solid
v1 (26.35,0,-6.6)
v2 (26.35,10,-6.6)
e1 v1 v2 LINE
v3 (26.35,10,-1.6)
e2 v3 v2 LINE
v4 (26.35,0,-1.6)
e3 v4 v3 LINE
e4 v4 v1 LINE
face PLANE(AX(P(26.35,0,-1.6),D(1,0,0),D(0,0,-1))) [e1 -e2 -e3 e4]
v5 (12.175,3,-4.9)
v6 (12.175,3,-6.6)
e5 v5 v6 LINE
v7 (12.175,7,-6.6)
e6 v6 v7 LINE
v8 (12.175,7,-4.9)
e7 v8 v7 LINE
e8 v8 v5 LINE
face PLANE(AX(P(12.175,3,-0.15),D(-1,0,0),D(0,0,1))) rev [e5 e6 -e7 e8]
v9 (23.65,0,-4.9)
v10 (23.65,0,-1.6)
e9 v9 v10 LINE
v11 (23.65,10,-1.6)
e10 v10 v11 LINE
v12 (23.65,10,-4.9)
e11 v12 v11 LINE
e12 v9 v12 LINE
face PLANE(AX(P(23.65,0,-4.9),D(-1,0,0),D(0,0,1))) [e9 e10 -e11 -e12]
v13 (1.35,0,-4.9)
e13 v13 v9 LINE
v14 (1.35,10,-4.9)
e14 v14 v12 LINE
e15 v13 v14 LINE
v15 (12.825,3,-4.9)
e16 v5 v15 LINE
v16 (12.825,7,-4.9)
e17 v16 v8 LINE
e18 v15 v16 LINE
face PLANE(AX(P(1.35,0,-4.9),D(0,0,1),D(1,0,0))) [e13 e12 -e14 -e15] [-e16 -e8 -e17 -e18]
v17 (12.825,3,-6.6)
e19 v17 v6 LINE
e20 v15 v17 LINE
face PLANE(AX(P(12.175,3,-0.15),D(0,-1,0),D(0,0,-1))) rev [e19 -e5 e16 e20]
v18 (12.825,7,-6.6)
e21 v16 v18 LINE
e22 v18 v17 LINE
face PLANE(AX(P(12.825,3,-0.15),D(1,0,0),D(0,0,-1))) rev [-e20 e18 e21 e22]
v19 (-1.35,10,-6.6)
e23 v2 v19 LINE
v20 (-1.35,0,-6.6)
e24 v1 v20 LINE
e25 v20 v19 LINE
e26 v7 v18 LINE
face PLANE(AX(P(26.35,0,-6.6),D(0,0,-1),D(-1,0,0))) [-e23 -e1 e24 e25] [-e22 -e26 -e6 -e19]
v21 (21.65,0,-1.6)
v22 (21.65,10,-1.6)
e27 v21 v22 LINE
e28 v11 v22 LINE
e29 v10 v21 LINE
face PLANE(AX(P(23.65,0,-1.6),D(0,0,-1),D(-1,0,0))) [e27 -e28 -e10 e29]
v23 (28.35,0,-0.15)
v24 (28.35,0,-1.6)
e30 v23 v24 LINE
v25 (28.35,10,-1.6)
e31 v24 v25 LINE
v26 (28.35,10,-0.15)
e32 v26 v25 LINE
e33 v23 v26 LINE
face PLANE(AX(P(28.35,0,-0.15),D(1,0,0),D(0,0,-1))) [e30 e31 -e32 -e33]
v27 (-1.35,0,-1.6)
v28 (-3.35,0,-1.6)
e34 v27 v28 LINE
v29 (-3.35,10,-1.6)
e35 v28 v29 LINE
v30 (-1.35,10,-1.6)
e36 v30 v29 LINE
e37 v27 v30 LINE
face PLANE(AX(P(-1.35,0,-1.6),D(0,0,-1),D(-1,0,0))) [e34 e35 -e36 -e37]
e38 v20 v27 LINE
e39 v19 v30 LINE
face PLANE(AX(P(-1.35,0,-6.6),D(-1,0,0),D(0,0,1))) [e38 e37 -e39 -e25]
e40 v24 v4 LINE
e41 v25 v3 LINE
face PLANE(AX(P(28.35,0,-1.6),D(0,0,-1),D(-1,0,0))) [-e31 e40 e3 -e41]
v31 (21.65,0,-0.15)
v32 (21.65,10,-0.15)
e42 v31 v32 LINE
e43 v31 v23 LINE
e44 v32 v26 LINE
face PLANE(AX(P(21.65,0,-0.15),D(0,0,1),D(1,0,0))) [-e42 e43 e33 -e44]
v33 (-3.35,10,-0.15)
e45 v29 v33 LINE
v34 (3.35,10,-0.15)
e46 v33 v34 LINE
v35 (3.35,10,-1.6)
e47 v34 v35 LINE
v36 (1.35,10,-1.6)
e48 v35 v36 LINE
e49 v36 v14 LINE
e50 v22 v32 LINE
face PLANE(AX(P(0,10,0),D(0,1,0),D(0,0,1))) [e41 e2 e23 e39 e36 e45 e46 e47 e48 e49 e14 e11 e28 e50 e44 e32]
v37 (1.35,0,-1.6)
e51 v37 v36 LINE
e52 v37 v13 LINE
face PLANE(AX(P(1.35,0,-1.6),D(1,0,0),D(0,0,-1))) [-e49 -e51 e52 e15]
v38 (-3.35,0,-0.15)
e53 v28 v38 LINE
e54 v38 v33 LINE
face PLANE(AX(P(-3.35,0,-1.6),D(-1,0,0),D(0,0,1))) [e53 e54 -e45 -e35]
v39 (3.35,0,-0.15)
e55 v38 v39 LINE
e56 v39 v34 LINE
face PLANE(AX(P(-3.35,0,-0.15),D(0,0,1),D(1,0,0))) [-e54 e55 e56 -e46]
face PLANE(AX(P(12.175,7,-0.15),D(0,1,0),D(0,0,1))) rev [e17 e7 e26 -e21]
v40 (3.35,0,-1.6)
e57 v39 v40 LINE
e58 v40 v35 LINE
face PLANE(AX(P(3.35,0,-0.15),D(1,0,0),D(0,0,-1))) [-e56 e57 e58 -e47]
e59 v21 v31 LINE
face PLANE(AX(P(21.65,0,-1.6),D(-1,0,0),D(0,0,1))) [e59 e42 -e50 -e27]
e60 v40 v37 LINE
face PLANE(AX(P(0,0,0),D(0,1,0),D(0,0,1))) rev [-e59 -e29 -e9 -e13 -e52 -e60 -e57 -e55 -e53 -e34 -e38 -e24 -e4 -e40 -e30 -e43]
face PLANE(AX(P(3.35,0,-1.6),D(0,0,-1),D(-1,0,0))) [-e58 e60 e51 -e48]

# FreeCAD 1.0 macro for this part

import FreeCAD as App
import Part
import Sketcher
from FreeCAD import Vector
Q = App.Units.Quantity

doc = App.newDocument("Part")
body = doc.addObject("PartDesign::Body", "Body")

# Sketch on XZ plane
sketch1 = body.newObject("Sketcher::SketchObject", "Sketch")
sketch1.AttachmentSupport = (doc.getObject("XZ_Plane"), [""])
sketch1.MapMode = "FlatFace"
sketch1.addGeometry([
    Part.LineSegment(Vector(3.5, -1.8, 0), Vector(1.5, -1.8, 0)),  # 0
    Part.LineSegment(Vector(1.5, -1.8, 0), Vector(1.5, -4.8, 0)),  # 1
    Part.LineSegment(Vector(1.5, -4.8, 0), Vector(23.5, -4.8, 0)),  # 2
    Part.LineSegment(Vector(23.5, -4.8, 0), Vector(23.5, -1.8, 0)),  # 3
    Part.LineSegment(Vector(23.5, -1.8, 0), Vector(21.5, -1.8, 0)),  # 4
    Part.LineSegment(Vector(21.5, -1.8, 0), Vector(21.5, 0, 0)),  # 5
    Part.LineSegment(Vector(21.5, 0, 0), Vector(28.5, 0, 0)),  # 6
    Part.LineSegment(Vector(28.5, 0, 0), Vector(28.5, -1.8, 0)),  # 7
    Part.LineSegment(Vector(28.5, -1.8, 0), Vector(26.5, -1.8, 0)),  # 8
    Part.LineSegment(Vector(26.5, -1.8, 0), Vector(26.5, -6.8, 0)),  # 9
    Part.LineSegment(Vector(26.5, -6.8, 0), Vector(-1.5, -6.8, 0)),  # 10
    Part.LineSegment(Vector(-1.5, -6.8, 0), Vector(-1.5, -1.8, 0)),  # 11
    Part.LineSegment(Vector(-1.5, -1.8, 0), Vector(-3.5, -1.8, 0)),  # 12
    Part.LineSegment(Vector(-3.5, -1.8, 0), Vector(-3.5, 0, 0)),  # 13
    Part.LineSegment(Vector(-3.5, 0, 0), Vector(3.5, 0, 0)),  # 14
    Part.LineSegment(Vector(3.5, 0, 0), Vector(3.5, -1.8, 0)),  # 15
], False)
sketch1.addConstraint([
    Sketcher.Constraint("Coincident", 0, 2, 1, 1),
    Sketcher.Constraint("Coincident", 1, 2, 2, 1),
    Sketcher.Constraint("Coincident", 2, 2, 3, 1),
    Sketcher.Constraint("Coincident", 3, 2, 4, 1),
    Sketcher.Constraint("Coincident", 4, 2, 5, 1),
    Sketcher.Constraint("Coincident", 5, 2, 6, 1),
    Sketcher.Constraint("Coincident", 6, 2, 7, 1),
    Sketcher.Constraint("Coincident", 7, 2, 8, 1),
    Sketcher.Constraint("Coincident", 8, 2, 9, 1),
    Sketcher.Constraint("Coincident", 9, 2, 10, 1),
    Sketcher.Constraint("Coincident", 10, 2, 11, 1),
    Sketcher.Constraint("Coincident", 11, 2, 12, 1),
    Sketcher.Constraint("Coincident", 12, 2, 13, 1),
    Sketcher.Constraint("Coincident", 13, 2, 14, 1),
    Sketcher.Constraint("Coincident", 14, 2, 15, 1),
    Sketcher.Constraint("Coincident", 15, 2, 0, 1),
    Sketcher.Constraint("Horizontal", 0),
    Sketcher.Constraint("Vertical", 1),
    Sketcher.Constraint("Horizontal", 2),
    Sketcher.Constraint("Vertical", 3),
    Sketcher.Constraint("Horizontal", 4),
    Sketcher.Constraint("Vertical", 5),
    Sketcher.Constraint("Horizontal", 6),
    Sketcher.Constraint("Vertical", 7),
    Sketcher.Constraint("Horizontal", 8),
    Sketcher.Constraint("Vertical", 9),
    Sketcher.Constraint("Horizontal", 10),
    Sketcher.Constraint("Vertical", 11),
    Sketcher.Constraint("Horizontal", 12),
    Sketcher.Constraint("Vertical", 13),
    Sketcher.Constraint("Horizontal", 14),
    Sketcher.Constraint("Vertical", 15),
    Sketcher.Constraint("Symmetric", 13, 2, 14, 2, -1, 1),
    Sketcher.Constraint("Symmetric", 0, 2, 11, 2, -2),
    Sketcher.Constraint("PointOnObject", 5, 2, -1),
    Sketcher.Constraint("Horizontal", 0, 2, 3, 2),
    Sketcher.Constraint("Horizontal", 4, 2, 7, 2),
    Sketcher.Constraint("Equal", 0, 4),
    Sketcher.Constraint("Equal", 4, 8),
    Sketcher.Constraint("Equal", 6, 14),
    Sketcher.Constraint("DistanceX", 0, 2, 0, 1, Q("2 mm")),
    Sketcher.Constraint("DistanceX", 2, 1, 2, 2, Q("22 mm")),
    Sketcher.Constraint("DistanceX", 6, 1, 6, 2, Q("7 mm")),
    Sketcher.Constraint("DistanceY", 1, 2, 1, 1, Q("3 mm")),
    Sketcher.Constraint("DistanceY", 9, 2, 9, 1, Q("5 mm")),
    Sketcher.Constraint("DistanceY", 5, 1, 5, 2, Q("1.75 mm")),
])
pad1 = body.newObject("PartDesign::Pad", "Pad")
pad1.Profile = sketch1
pad1.Length = 10
pad1.Reversed = True

# Sketch on XZ plane
sketch2 = body.newObject("Sketcher::SketchObject", "Sketch001")
sketch2.AttachmentSupport = (doc.getObject("XZ_Plane"), [""])
sketch2.MapMode = "FlatFace"
sketch2.AttachmentOffset = App.Placement(Vector(0, 0, -10), App.Rotation())
sketch2.addGeometry([
    Part.LineSegment(Vector(-3.6, -1.9, 0), Vector(-3.6, 0.1, 0)),  # 0
    Part.LineSegment(Vector(-3.6, 0.1, 0), Vector(3.6, 0.1, 0)),  # 1
    Part.LineSegment(Vector(3.6, 0.1, 0), Vector(3.6, -1.9, 0)),  # 2
    Part.LineSegment(Vector(3.6, -1.9, 0), Vector(1.6, -1.9, 0)),  # 3
    Part.LineSegment(Vector(1.6, -1.9, 0), Vector(1.6, -4.6, 0)),  # 4
    Part.LineSegment(Vector(1.6, -4.6, 0), Vector(23.4, -4.6, 0)),  # 5
    Part.LineSegment(Vector(23.4, -4.6, 0), Vector(23.4, -1.9, 0)),  # 6
    Part.LineSegment(Vector(23.4, -1.9, 0), Vector(21.4, -1.9, 0)),  # 7
    Part.LineSegment(Vector(21.4, -1.9, 0), Vector(21.4, 0.1, 0)),  # 8
    Part.LineSegment(Vector(21.4, 0.1, 0), Vector(28.6, 0.1, 0)),  # 9
    Part.LineSegment(Vector(28.6, 0.1, 0), Vector(28.6, -1.9, 0)),  # 10
    Part.LineSegment(Vector(28.6, -1.9, 0), Vector(26.6, -1.9, 0)),  # 11
    Part.LineSegment(Vector(26.6, -1.9, 0), Vector(26.6, -6.9, 0)),  # 12
    Part.LineSegment(Vector(26.6, -6.9, 0), Vector(-1.6, -6.9, 0)),  # 13
    Part.LineSegment(Vector(-1.6, -6.9, 0), Vector(-1.6, -1.9, 0)),  # 14
    Part.LineSegment(Vector(-1.6, -1.9, 0), Vector(-3.6, -1.9, 0)),  # 15
    Part.LineSegment(Vector(-3.4, -0.1, 0), Vector(-3.4, -1.6, 0)),  # 16
    Part.LineSegment(Vector(-3.4, -1.6, 0), Vector(-1.4, -1.6, 0)),  # 17
    Part.LineSegment(Vector(-1.4, -1.6, 0), Vector(-1.4, -6.6, 0)),  # 18
    Part.LineSegment(Vector(-1.4, -6.6, 0), Vector(26.4, -6.6, 0)),  # 19
    Part.LineSegment(Vector(26.4, -6.6, 0), Vector(26.4, -1.6, 0)),  # 20
    Part.LineSegment(Vector(26.4, -1.6, 0), Vector(28.4, -1.6, 0)),  # 21
    Part.LineSegment(Vector(28.4, -1.6, 0), Vector(28.4, -0.1, 0)),  # 22
    Part.LineSegment(Vector(28.4, -0.1, 0), Vector(21.6, -0.1, 0)),  # 23
    Part.LineSegment(Vector(21.6, -0.1, 0), Vector(21.6, -1.6, 0)),  # 24
    Part.LineSegment(Vector(21.6, -1.6, 0), Vector(23.6, -1.6, 0)),  # 25
    Part.LineSegment(Vector(23.6, -1.6, 0), Vector(23.6, -4.9, 0)),  # 26
    Part.LineSegment(Vector(23.6, -4.9, 0), Vector(1.4, -4.9, 0)),  # 27
    Part.LineSegment(Vector(1.4, -4.9, 0), Vector(1.4, -1.6, 0)),  # 28
    Part.LineSegment(Vector(1.4, -1.6, 0), Vector(3.4, -1.6, 0)),  # 29
    Part.LineSegment(Vector(3.4, -1.6, 0), Vector(3.4, -0.1, 0)),  # 30
    Part.LineSegment(Vector(3.4, -0.1, 0), Vector(-3.4, -0.1, 0)),  # 31
], False)
sketch2.addConstraint([
    Sketcher.Constraint("Coincident", 0, 2, 1, 1),
    Sketcher.Constraint("Coincident", 1, 2, 2, 1),
    Sketcher.Constraint("Coincident", 2, 2, 3, 1),
    Sketcher.Constraint("Coincident", 3, 2, 4, 1),
    Sketcher.Constraint("Coincident", 4, 2, 5, 1),
    Sketcher.Constraint("Coincident", 5, 2, 6, 1),
    Sketcher.Constraint("Coincident", 6, 2, 7, 1),
    Sketcher.Constraint("Coincident", 7, 2, 8, 1),
    Sketcher.Constraint("Coincident", 8, 2, 9, 1),
    Sketcher.Constraint("Coincident", 9, 2, 10, 1),
    Sketcher.Constraint("Coincident", 10, 2, 11, 1),
    Sketcher.Constraint("Coincident", 11, 2, 12, 1),
    Sketcher.Constraint("Coincident", 12, 2, 13, 1),
    Sketcher.Constraint("Coincident", 13, 2, 14, 1),
    Sketcher.Constraint("Coincident", 14, 2, 15, 1),
    Sketcher.Constraint("Coincident", 15, 2, 0, 1),
    Sketcher.Constraint("Coincident", 16, 2, 17, 1),
    Sketcher.Constraint("Coincident", 17, 2, 18, 1),
    Sketcher.Constraint("Coincident", 18, 2, 19, 1),
    Sketcher.Constraint("Coincident", 19, 2, 20, 1),
    Sketcher.Constraint("Coincident", 20, 2, 21, 1),
    Sketcher.Constraint("Coincident", 21, 2, 22, 1),
    Sketcher.Constraint("Coincident", 22, 2, 23, 1),
    Sketcher.Constraint("Coincident", 23, 2, 24, 1),
    Sketcher.Constraint("Coincident", 24, 2, 25, 1),
    Sketcher.Constraint("Coincident", 25, 2, 26, 1),
    Sketcher.Constraint("Coincident", 26, 2, 27, 1),
    Sketcher.Constraint("Coincident", 27, 2, 28, 1),
    Sketcher.Constraint("Coincident", 28, 2, 29, 1),
    Sketcher.Constraint("Coincident", 29, 2, 30, 1),
    Sketcher.Constraint("Coincident", 30, 2, 31, 1),
    Sketcher.Constraint("Coincident", 31, 2, 16, 1),
    Sketcher.Constraint("Vertical", 0),
    Sketcher.Constraint("Horizontal", 1),
    Sketcher.Constraint("Vertical", 2),
    Sketcher.Constraint("Horizontal", 3),
    Sketcher.Constraint("Vertical", 4),
    Sketcher.Constraint("Horizontal", 5),
    Sketcher.Constraint("Vertical", 6),
    Sketcher.Constraint("Horizontal", 7),
    Sketcher.Constraint("Vertical", 8),
    Sketcher.Constraint("Horizontal", 9),
    Sketcher.Constraint("Vertical", 10),
    Sketcher.Constraint("Horizontal", 11),
    Sketcher.Constraint("Vertical", 12),
    Sketcher.Constraint("Horizontal", 13),
    Sketcher.Constraint("Vertical", 14),
    Sketcher.Constraint("Horizontal", 15),
    Sketcher.Constraint("Vertical", 16),
    Sketcher.Constraint("Horizontal", 17),
    Sketcher.Constraint("Vertical", 18),
    Sketcher.Constraint("Horizontal", 19),
    Sketcher.Constraint("Vertical", 20),
    Sketcher.Constraint("Horizontal", 21),
    Sketcher.Constraint("Vertical", 22),
    Sketcher.Constraint("Horizontal", 23),
    Sketcher.Constraint("Vertical", 24),
    Sketcher.Constraint("Horizontal", 25),
    Sketcher.Constraint("Vertical", 26),
    Sketcher.Constraint("Horizontal", 27),
    Sketcher.Constraint("Vertical", 28),
    Sketcher.Constraint("Horizontal", 29),
    Sketcher.Constraint("Vertical", 30),
    Sketcher.Constraint("Horizontal", 31),
    Sketcher.Constraint("Symmetric", 3, 2, 14, 2, -2),
    Sketcher.Constraint("Symmetric", 17, 2, 28, 2, -2),
    Sketcher.Constraint("Horizontal", 3, 2, 6, 2),
    Sketcher.Constraint("Horizontal", 1, 2, 8, 2),
    Sketcher.Constraint("Horizontal", 7, 2, 10, 2),
    Sketcher.Constraint("Horizontal", 17, 2, 20, 2),
    Sketcher.Constraint("Horizontal", 21, 2, 24, 2),
    Sketcher.Constraint("Horizontal", 23, 2, 30, 2),
    Sketcher.Constraint("Equal", 3, 7),
    Sketcher.Constraint("Equal", 1, 9),
    Sketcher.Constraint("Equal", 7, 11),
    Sketcher.Constraint("Equal", 11, 15),
    Sketcher.Constraint("Equal", 15, 17),
    Sketcher.Constraint("Equal", 17, 21),
    Sketcher.Constraint("Equal", 21, 25),
    Sketcher.Constraint("Equal", 25, 29),
    Sketcher.Constraint("Equal", 23, 31),
    Sketcher.Constraint("Equal", 14, 18),
    Sketcher.Constraint("DistanceX", 3, 2, 3, 1, Q("2 mm")),
    Sketcher.Constraint("DistanceY", 12, 2, 12, 1, Q("5 mm")),
    Sketcher.Constraint("DistanceX", 1, 1, 1, 2, Q("7.3 mm")),
    Sketcher.Constraint("DistanceX", 5, 1, 5, 2, Q("21.7 mm")),
    Sketcher.Constraint("DistanceX", 19, 1, 19, 2, Q("27.7 mm")),
    Sketcher.Constraint("DistanceX", 23, 2, 23, 1, Q("6.7 mm")),
    Sketcher.Constraint("DistanceY", 4, 2, 4, 1, Q("2.7 mm")),
    Sketcher.Constraint("DistanceY", 26, 2, 26, 1, Q("3.3 mm")),
    Sketcher.Constraint("DistanceY", 18, 2, 4, 2, Q("2 mm")),
    Sketcher.Constraint("DistanceY", 0, 1, 0, 2, Q("2.05 mm")),
    Sketcher.Constraint("DistanceY", 16, 2, 16, 1, Q("1.45 mm")),
    Sketcher.Constraint("DistanceY", 2, 2, -1, 1, Q("1.9 mm")),
])
pocket1 = body.newObject("PartDesign::Pocket", "Pocket")
pocket1.Profile = sketch2
pocket1.Type = "ThroughAll"
pocket1.Reversed = True

# Sketch on XY plane
sketch3 = body.newObject("Sketcher::SketchObject", "Sketch002")
sketch3.AttachmentSupport = (doc.getObject("XY_Plane"), [""])
sketch3.MapMode = "FlatFace"
sketch3.AttachmentOffset = App.Placement(Vector(0, 0, -6.6), App.Rotation())
sketch3.addGeometry([
    Part.LineSegment(Vector(12.8, 7, 0), Vector(12.8, 3, 0)),
    Part.LineSegment(Vector(12.8, 3, 0), Vector(12.2, 3, 0)),
    Part.LineSegment(Vector(12.2, 3, 0), Vector(12.2, 7, 0)),
    Part.LineSegment(Vector(12.2, 7, 0), Vector(12.8, 7, 0)),
], False)
sketch3.addConstraint([
    Sketcher.Constraint("Coincident", 0, 2, 1, 1),
    Sketcher.Constraint("Coincident", 1, 2, 2, 1),
    Sketcher.Constraint("Coincident", 2, 2, 3, 1),
    Sketcher.Constraint("Coincident", 3, 2, 0, 1),
    Sketcher.Constraint("Vertical", 0),
    Sketcher.Constraint("Horizontal", 1),
    Sketcher.Constraint("Vertical", 2),
    Sketcher.Constraint("Horizontal", 3),
    Sketcher.Constraint("DistanceY", 0, 2, 0, 1, Q("4 mm")),
    Sketcher.Constraint("DistanceY", -1, 1, 0, 2, Q("3 mm")),
    Sketcher.Constraint("DistanceX", 1, 2, 1, 1, Q("0.65 mm")),
    Sketcher.Constraint("DistanceX", -1, 1, 0, 2, Q("12.825 mm")),
])
pocket2 = body.newObject("PartDesign::Pocket", "Pocket001")
pocket2.Profile = sketch3
pocket2.Type = "ThroughAll"
pocket2.Reversed = True

doc.recompute()
